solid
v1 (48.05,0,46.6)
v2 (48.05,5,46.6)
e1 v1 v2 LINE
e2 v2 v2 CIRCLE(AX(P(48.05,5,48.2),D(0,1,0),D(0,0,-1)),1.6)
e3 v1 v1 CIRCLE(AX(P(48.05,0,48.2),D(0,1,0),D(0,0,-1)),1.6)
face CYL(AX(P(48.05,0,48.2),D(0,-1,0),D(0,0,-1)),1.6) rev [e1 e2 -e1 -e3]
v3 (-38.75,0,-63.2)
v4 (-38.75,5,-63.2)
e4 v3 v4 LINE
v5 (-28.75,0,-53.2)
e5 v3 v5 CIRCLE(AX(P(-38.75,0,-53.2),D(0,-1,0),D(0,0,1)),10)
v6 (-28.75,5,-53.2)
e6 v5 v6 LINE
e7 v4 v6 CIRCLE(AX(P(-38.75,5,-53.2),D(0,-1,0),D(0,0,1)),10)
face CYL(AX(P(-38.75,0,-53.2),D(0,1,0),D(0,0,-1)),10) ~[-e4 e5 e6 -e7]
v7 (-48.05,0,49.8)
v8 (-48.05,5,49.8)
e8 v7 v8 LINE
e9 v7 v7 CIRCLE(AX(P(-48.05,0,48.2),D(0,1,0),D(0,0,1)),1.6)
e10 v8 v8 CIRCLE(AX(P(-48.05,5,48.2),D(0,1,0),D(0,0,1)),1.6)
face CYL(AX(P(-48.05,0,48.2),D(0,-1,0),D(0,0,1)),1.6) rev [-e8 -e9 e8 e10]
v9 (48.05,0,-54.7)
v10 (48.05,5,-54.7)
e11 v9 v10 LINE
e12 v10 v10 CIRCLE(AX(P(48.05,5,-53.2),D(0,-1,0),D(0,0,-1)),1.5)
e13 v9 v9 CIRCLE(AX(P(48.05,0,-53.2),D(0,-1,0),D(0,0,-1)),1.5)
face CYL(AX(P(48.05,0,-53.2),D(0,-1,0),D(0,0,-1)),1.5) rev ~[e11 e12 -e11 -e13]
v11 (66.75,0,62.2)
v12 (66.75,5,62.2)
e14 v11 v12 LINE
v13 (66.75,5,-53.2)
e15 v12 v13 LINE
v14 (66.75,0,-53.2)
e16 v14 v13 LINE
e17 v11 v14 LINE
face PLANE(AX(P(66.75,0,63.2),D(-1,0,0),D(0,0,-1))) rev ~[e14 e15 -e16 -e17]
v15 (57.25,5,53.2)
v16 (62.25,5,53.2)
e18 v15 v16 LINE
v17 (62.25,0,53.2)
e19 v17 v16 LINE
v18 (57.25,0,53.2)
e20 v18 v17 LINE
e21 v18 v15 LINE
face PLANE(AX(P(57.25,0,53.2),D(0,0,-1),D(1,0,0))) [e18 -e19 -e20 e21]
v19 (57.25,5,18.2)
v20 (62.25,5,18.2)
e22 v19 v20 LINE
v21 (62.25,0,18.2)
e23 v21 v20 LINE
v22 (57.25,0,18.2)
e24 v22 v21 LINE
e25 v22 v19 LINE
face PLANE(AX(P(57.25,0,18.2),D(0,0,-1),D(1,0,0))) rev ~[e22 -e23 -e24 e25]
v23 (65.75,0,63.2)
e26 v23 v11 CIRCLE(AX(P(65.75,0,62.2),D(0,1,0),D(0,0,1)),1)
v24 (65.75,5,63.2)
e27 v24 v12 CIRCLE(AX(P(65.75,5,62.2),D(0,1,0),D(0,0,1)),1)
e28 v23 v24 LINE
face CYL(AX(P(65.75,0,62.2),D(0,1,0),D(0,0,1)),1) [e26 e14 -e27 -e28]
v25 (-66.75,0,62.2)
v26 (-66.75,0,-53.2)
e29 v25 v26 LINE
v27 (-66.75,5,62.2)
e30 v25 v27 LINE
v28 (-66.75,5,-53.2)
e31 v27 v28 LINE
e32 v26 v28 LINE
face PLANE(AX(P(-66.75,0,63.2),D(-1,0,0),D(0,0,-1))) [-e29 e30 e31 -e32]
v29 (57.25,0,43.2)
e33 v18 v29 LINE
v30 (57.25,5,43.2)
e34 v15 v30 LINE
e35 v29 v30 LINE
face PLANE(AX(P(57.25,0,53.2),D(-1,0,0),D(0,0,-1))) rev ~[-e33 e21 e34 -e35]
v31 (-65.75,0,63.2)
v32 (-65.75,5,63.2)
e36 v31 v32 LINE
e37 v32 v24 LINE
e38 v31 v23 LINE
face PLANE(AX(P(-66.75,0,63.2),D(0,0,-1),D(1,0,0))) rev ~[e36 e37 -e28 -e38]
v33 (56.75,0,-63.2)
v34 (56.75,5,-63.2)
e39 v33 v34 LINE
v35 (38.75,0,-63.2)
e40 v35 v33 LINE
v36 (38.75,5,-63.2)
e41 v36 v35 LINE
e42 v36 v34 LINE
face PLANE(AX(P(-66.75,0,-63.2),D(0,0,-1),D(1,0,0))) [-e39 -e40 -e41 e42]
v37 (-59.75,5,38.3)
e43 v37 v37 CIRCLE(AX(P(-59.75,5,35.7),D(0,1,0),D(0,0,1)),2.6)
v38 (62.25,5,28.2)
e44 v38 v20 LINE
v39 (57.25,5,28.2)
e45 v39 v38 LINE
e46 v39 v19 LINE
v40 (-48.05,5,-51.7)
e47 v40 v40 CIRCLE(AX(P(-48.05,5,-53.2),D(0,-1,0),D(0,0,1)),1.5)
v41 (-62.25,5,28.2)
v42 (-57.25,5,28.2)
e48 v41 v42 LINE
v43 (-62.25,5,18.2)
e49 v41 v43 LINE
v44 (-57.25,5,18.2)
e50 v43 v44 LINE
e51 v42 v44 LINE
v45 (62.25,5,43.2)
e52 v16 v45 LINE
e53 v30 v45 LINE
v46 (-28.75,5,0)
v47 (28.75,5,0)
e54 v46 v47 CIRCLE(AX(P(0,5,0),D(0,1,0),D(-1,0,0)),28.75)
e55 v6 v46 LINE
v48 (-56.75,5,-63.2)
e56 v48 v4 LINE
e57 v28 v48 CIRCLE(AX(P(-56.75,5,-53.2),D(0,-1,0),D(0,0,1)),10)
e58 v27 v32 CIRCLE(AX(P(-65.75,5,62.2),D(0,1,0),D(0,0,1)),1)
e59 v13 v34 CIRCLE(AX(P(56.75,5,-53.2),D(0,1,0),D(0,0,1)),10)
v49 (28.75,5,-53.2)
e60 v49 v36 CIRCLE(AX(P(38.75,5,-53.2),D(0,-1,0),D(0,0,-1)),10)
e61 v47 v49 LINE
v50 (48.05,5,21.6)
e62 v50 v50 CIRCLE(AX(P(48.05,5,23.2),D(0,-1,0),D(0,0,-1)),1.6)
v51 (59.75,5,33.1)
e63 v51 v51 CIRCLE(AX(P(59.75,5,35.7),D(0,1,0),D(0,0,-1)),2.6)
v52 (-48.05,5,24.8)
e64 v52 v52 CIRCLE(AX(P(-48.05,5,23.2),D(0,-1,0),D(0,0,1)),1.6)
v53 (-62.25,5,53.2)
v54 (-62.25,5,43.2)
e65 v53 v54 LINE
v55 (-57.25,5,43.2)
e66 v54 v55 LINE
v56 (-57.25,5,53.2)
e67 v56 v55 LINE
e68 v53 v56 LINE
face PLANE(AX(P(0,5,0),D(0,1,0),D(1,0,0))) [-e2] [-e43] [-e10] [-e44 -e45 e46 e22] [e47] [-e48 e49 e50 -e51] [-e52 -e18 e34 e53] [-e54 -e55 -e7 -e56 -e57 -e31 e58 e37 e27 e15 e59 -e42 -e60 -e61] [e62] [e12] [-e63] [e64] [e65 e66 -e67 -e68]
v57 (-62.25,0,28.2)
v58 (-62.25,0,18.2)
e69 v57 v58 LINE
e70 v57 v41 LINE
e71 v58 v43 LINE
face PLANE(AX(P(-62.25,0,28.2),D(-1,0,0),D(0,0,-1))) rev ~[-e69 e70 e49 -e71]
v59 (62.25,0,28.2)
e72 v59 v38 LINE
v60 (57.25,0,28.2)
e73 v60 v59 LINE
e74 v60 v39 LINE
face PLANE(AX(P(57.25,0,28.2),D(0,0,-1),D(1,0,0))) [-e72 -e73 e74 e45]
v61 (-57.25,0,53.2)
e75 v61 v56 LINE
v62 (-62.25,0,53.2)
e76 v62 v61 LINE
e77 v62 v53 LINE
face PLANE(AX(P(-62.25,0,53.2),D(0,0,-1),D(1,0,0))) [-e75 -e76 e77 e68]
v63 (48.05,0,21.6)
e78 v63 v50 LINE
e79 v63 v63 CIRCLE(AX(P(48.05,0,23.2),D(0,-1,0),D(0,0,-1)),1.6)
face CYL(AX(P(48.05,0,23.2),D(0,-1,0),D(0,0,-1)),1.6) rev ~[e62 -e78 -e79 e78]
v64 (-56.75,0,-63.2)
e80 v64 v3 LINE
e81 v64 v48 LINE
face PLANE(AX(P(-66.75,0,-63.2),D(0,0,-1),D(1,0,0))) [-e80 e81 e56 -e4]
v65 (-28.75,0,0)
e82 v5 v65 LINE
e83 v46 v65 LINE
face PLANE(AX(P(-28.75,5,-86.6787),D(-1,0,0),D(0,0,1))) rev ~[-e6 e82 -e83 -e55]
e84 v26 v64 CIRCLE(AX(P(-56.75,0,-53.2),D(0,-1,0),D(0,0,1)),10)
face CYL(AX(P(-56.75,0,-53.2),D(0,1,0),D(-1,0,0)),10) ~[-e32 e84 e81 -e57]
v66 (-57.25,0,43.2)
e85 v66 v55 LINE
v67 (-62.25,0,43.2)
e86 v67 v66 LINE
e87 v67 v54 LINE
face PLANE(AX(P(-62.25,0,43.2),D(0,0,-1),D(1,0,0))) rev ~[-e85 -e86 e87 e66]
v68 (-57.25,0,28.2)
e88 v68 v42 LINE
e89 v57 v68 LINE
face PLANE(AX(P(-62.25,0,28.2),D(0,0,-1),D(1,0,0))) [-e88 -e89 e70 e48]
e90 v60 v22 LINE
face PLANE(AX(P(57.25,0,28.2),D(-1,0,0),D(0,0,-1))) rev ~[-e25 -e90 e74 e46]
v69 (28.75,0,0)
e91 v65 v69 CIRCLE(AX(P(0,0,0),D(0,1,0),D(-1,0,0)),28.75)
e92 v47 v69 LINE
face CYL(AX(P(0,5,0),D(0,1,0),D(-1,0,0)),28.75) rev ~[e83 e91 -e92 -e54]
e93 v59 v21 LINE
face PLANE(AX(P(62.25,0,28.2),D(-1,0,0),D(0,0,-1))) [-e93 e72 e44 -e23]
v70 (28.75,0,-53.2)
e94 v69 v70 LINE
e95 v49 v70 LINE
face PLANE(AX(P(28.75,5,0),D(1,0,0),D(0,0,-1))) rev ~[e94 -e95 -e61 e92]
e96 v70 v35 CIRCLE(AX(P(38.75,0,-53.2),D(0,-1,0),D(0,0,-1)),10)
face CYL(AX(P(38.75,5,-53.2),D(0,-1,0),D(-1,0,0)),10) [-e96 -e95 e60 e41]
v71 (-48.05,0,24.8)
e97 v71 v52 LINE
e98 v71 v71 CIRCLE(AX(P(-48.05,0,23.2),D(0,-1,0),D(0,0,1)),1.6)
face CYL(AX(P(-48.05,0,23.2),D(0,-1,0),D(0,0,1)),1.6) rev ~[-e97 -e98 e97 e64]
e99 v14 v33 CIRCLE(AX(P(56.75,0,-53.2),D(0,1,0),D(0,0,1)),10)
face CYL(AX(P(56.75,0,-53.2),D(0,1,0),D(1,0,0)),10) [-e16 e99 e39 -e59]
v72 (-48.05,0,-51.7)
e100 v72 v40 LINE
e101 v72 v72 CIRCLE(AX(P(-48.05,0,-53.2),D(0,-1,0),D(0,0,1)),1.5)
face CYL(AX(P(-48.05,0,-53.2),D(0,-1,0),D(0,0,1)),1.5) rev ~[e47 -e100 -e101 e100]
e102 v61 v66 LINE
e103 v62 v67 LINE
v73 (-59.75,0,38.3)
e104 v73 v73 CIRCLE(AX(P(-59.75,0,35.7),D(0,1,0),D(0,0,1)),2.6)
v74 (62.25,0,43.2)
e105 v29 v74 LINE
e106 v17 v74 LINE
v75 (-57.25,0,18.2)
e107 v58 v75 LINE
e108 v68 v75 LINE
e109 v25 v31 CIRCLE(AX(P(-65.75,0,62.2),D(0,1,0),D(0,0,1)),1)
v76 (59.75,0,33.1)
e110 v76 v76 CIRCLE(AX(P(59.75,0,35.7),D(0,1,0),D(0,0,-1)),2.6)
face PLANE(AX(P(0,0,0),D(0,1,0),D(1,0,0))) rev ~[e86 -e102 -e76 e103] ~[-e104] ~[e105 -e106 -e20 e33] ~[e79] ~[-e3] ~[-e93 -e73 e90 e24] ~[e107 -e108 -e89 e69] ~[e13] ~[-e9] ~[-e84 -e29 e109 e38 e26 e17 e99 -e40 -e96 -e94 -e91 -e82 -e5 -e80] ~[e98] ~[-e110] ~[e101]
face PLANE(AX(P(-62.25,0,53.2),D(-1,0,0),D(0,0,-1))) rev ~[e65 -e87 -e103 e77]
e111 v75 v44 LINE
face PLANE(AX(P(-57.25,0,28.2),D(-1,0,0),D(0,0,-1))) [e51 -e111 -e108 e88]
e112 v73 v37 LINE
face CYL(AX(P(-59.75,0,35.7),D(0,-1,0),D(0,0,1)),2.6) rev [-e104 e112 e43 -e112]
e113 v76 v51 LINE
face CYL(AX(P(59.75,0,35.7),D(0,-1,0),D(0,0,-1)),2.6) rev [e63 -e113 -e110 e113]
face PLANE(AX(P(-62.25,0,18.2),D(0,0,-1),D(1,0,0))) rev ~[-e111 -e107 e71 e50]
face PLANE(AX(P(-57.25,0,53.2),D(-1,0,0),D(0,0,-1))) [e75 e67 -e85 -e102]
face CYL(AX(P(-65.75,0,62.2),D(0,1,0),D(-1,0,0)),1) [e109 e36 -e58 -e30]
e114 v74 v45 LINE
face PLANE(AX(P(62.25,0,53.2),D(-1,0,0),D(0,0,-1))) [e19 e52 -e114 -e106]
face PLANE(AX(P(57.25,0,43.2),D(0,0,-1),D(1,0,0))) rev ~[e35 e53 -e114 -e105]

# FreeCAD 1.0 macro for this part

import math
import FreeCAD as App
import Part
import Sketcher
from FreeCAD import Vector


def edges_at(feature, points):
    """Names of the edges that pass closest to the given points."""
    edges = feature.Shape.Edges
    near = lambda p: min(range(len(edges)), key=lambda i: edges[i].distToShape(Part.Vertex(*p))[0])
    return sorted({f"Edge{near(p) + 1}" for p in points})

doc = App.newDocument("Part")
body = doc.addObject("PartDesign::Body", "Body")

sketch1 = doc.addObject("Sketcher::SketchObject", "Sketch")
body.addObject(sketch1)
sketch1.AttachmentSupport = (doc.XZ_Plane, [""])
sketch1.MapMode = "FlatFace"
sketch1.addGeometry([
    Part.LineSegment(Vector(-66.75, -63.2, 0), Vector(-66.75, 63.2, 0)),
    Part.LineSegment(Vector(-66.75, 63.2, 0), Vector(66.75, 63.2, 0)),
    Part.LineSegment(Vector(66.75, 63.2, 0), Vector(66.75, -63.2, 0)),
    Part.LineSegment(Vector(66.75, -63.2, 0), Vector(-66.75, -63.2, 0)),
    Part.LineSegment(Vector(-57.25, 53.2, 0), Vector(-62.25, 53.2, 0)),
    Part.LineSegment(Vector(-62.25, 53.2, 0), Vector(-62.25, 43.2, 0)),
    Part.LineSegment(Vector(-62.25, 43.2, 0), Vector(-57.25, 43.2, 0)),
    Part.LineSegment(Vector(-57.25, 43.2, 0), Vector(-57.25, 53.2, 0)),
    Part.Circle(Vector(-48.05, 48.2, 0), Vector(0, 0, 1), 1.6),
    Part.Circle(Vector(48.05, 48.2, 0), Vector(0, 0, 1), 1.6),
    Part.LineSegment(Vector(62.25, 53.2, 0), Vector(57.25, 53.2, 0)),
    Part.LineSegment(Vector(57.25, 53.2, 0), Vector(57.25, 43.2, 0)),
    Part.LineSegment(Vector(57.25, 43.2, 0), Vector(62.25, 43.2, 0)),
    Part.LineSegment(Vector(62.25, 43.2, 0), Vector(62.25, 53.2, 0)),
    Part.Circle(Vector(-59.75, 35.7, 0), Vector(0, 0, 1), 2.6),
    Part.LineSegment(Vector(-57.25, 28.2, 0), Vector(-62.25, 28.2, 0)),
    Part.LineSegment(Vector(-62.25, 28.2, 0), Vector(-62.25, 18.2, 0)),
    Part.LineSegment(Vector(-62.25, 18.2, 0), Vector(-57.25, 18.2, 0)),
    Part.LineSegment(Vector(-57.25, 18.2, 0), Vector(-57.25, 28.2, 0)),
    Part.Circle(Vector(59.75, 35.7, 0), Vector(0, 0, 1), 2.6),
    Part.LineSegment(Vector(62.25, 28.2, 0), Vector(57.25, 28.2, 0)),
    Part.LineSegment(Vector(57.25, 28.2, 0), Vector(57.25, 18.2, 0)),
    Part.LineSegment(Vector(57.25, 18.2, 0), Vector(62.25, 18.2, 0)),
    Part.LineSegment(Vector(62.25, 18.2, 0), Vector(62.25, 28.2, 0)),
], False)
sketch1.addConstraint([
    Sketcher.Constraint("Coincident", 0, 2, 1, 1),
    Sketcher.Constraint("Coincident", 1, 2, 2, 1),
    Sketcher.Constraint("Coincident", 2, 2, 3, 1),
    Sketcher.Constraint("Coincident", 3, 2, 0, 1),
    Sketcher.Constraint("Coincident", 4, 2, 5, 1),
    Sketcher.Constraint("Coincident", 5, 2, 6, 1),
    Sketcher.Constraint("Coincident", 6, 2, 7, 1),
    Sketcher.Constraint("Coincident", 7, 2, 4, 1),
    Sketcher.Constraint("Coincident", 10, 2, 11, 1),
    Sketcher.Constraint("Coincident", 11, 2, 12, 1),
    Sketcher.Constraint("Coincident", 12, 2, 13, 1),
    Sketcher.Constraint("Coincident", 13, 2, 10, 1),
    Sketcher.Constraint("Coincident", 15, 2, 16, 1),
    Sketcher.Constraint("Coincident", 16, 2, 17, 1),
    Sketcher.Constraint("Coincident", 17, 2, 18, 1),
    Sketcher.Constraint("Coincident", 18, 2, 15, 1),
    Sketcher.Constraint("Coincident", 20, 2, 21, 1),
    Sketcher.Constraint("Coincident", 21, 2, 22, 1),
    Sketcher.Constraint("Coincident", 22, 2, 23, 1),
    Sketcher.Constraint("Coincident", 23, 2, 20, 1),
    Sketcher.Constraint("Vertical", 0),
    Sketcher.Constraint("Horizontal", 1),
    Sketcher.Constraint("Vertical", 2),
    Sketcher.Constraint("Horizontal", 3),
    Sketcher.Constraint("Horizontal", 4),
    Sketcher.Constraint("Vertical", 5),
    Sketcher.Constraint("Horizontal", 6),
    Sketcher.Constraint("Vertical", 7),
    Sketcher.Constraint("Horizontal", 10),
    Sketcher.Constraint("Vertical", 11),
    Sketcher.Constraint("Horizontal", 12),
    Sketcher.Constraint("Vertical", 13),
    Sketcher.Constraint("Horizontal", 15),
    Sketcher.Constraint("Vertical", 16),
    Sketcher.Constraint("Horizontal", 17),
    Sketcher.Constraint("Vertical", 18),
    Sketcher.Constraint("Horizontal", 20),
    Sketcher.Constraint("Vertical", 21),
    Sketcher.Constraint("Horizontal", 22),
    Sketcher.Constraint("Vertical", 23),
    Sketcher.Constraint("Equal", 8, 9),
    Sketcher.Constraint("Equal", 14, 19),
    Sketcher.Constraint("Symmetric", 0, 2, 2, 2, -1, 1),
    Sketcher.Constraint("Symmetric", 8, 3, 9, 3, -2),
    Sketcher.Constraint("Symmetric", 14, 3, 19, 3, -2),
    Sketcher.Constraint("Symmetric", 7, 2, 10, 2, -2),
    Sketcher.Constraint("Symmetric", 5, 2, 12, 2, -2),
    Sketcher.Constraint("Symmetric", 18, 2, 20, 2, -2),
    Sketcher.Constraint("Symmetric", 16, 2, 22, 2, -2),
    Sketcher.Constraint("Vertical", 5, 2, 15, 2),
    Sketcher.Constraint("Vertical", 7, 2, 17, 2),
    Sketcher.Constraint("Equal", 13, 16),
    Sketcher.Constraint("Diameter", 8, 3.2),
    Sketcher.Constraint("Diameter", 14, 5.2),
    Sketcher.Constraint("DistanceX", 4, 2, 4, 1, 5.0),
    Sketcher.Constraint("DistanceY", 5, 2, 5, 1, 10.0),
    Sketcher.Constraint("DistanceX", 1, 1, 1, 2, 133.5),
    Sketcher.Constraint("DistanceY", 0, 1, 0, 2, 126.4),
    Sketcher.Constraint("DistanceY", 8, 3, 0, 2, 15.0),
    Sketcher.Constraint("DistanceX", 0, 2, 14, 3, 7.0),
    Sketcher.Constraint("DistanceY", 4, 2, 0, 2, 10.0),
    Sketcher.Constraint("DistanceY", 15, 2, 5, 2, 15.0),
    Sketcher.Constraint("DistanceY", -1, 1, 14, 3, 35.7),
    Sketcher.Constraint("DistanceX", 8, 3, 9, 3, 96.1),
    Sketcher.Constraint("DistanceX", 0, 2, 4, 2, 4.5),
])
pad1 = doc.addObject("PartDesign::Pad", "Pad")
body.addObject(pad1)
pad1.Profile = sketch1
pad1.Length = 5
pad1.Reversed = True

sketch2 = doc.addObject("Sketcher::SketchObject", "Sketch001")
body.addObject(sketch2)
sketch2.AttachmentSupport = (doc.XZ_Plane, [""])
sketch2.MapMode = "FlatFace"
sketch2.AttachmentOffset = App.Placement(Vector(0, 0, -5), App.Rotation())
sketch2.addGeometry([
    Part.LineSegment(Vector(-28.75, -86.6787, 0), Vector(-28.75, 0, 0)),
    Part.ArcOfCircle(Part.Circle(Vector(0, 0, 0), Vector(0, 0, 1), 28.75), math.radians(0), math.radians(180)),
    Part.LineSegment(Vector(28.75, 0, 0), Vector(28.75, -86.6787, 0)),
    Part.LineSegment(Vector(28.75, -86.6787, 0), Vector(-28.75, -86.6787, 0)),
], False)
sketch2.addConstraint([
    Sketcher.Constraint("Tangent", 0, 2, 1, 2),
    Sketcher.Constraint("Tangent", 1, 1, 2, 1),
    Sketcher.Constraint("Coincident", 2, 2, 3, 1),
    Sketcher.Constraint("Coincident", 3, 2, 0, 1),
    Sketcher.Constraint("Vertical", 0),
    Sketcher.Constraint("Vertical", 2),
    Sketcher.Constraint("Horizontal", 3),
    Sketcher.Constraint("Coincident", 1, 3, -1, 1),
    Sketcher.Constraint("Radius", 1, 28.75),
    Sketcher.Constraint("DistanceY", 0, 1, 0, 2, 86.6787),
])
pocket1 = doc.addObject("PartDesign::Pocket", "Pocket")
body.addObject(pocket1)
pocket1.Profile = sketch2
pocket1.Length = 10
pocket1.Reversed = True
doc.recompute()

fillet = doc.addObject("PartDesign::Fillet", "Fillet")
body.addObject(fillet)
fillet.Base = (pocket1, edges_at(pocket1, [
    (-66.75, 2.5, -63.2),
    (66.75, 2.5, -63.2),
    (-28.75, 2.5, -63.2),
    (28.75, 2.5, -63.2),
]))
fillet.Radius = 10

sketch3 = doc.addObject("Sketcher::SketchObject", "Sketch002")
body.addObject(sketch3)
sketch3.AttachmentSupport = (doc.XZ_Plane, [""])
sketch3.MapMode = "FlatFace"
sketch3.addGeometry(Part.Circle(Vector(48.05, 23.2, 0), Vector(0, 0, 1), 1.6), False)
sketch3.addConstraint([
    Sketcher.Constraint("Diameter", 0, 3.2),
    Sketcher.Constraint("DistanceY", -1, 1, 0, 3, 23.2),
    Sketcher.Constraint("DistanceX", -1, 1, 0, 3, 48.05),
])
pocket2 = doc.addObject("PartDesign::Pocket", "Pocket001")
body.addObject(pocket2)
pocket2.Profile = sketch3
pocket2.Type = "UpToFirst"

sketch4 = doc.addObject("Sketcher::SketchObject", "Sketch003")
body.addObject(sketch4)
sketch4.AttachmentSupport = (doc.XZ_Plane, [""])
sketch4.MapMode = "FlatFace"
sketch4.addGeometry(Part.Circle(Vector(48.05, -53.2, 0), Vector(0, 0, 1), 1.5), False)
sketch4.addConstraint([
    Sketcher.Constraint("Diameter", 0, 3.0),
    Sketcher.Constraint("DistanceY", 0, 3, -1, 1, 53.2),
    Sketcher.Constraint("DistanceX", -1, 1, 0, 3, 48.05),
])
pocket3 = doc.addObject("PartDesign::Pocket", "Pocket002")
body.addObject(pocket3)
pocket3.Profile = sketch4
pocket3.Type = "UpToFirst"

sketch5 = doc.addObject("Sketcher::SketchObject", "Sketch004")
body.addObject(sketch5)
sketch5.AttachmentSupport = (doc.XZ_Plane, [""])
sketch5.MapMode = "FlatFace"
sketch5.addGeometry(Part.Circle(Vector(-48.05, -53.2, 0), Vector(0, 0, 1), 1.5), False)
sketch5.addConstraint([
    Sketcher.Constraint("Diameter", 0, 3.0),
    Sketcher.Constraint("DistanceY", 0, 3, -1, 1, 53.2),
    Sketcher.Constraint("DistanceX", 0, 3, -1, 1, 48.05),
])
pocket4 = doc.addObject("PartDesign::Pocket", "Pocket003")
body.addObject(pocket4)
pocket4.Profile = sketch5
pocket4.Type = "UpToFirst"

sketch6 = doc.addObject("Sketcher::SketchObject", "Sketch005")
body.addObject(sketch6)
sketch6.AttachmentSupport = (doc.XZ_Plane, [""])
sketch6.MapMode = "FlatFace"
sketch6.addGeometry(Part.Circle(Vector(-48.05, 23.2, 0), Vector(0, 0, 1), 1.6), False)
sketch6.addConstraint([
    Sketcher.Constraint("Diameter", 0, 3.2),
    Sketcher.Constraint("DistanceY", -1, 1, 0, 3, 23.2),
    Sketcher.Constraint("DistanceX", 0, 3, -1, 1, 48.05),
])
pocket5 = doc.addObject("PartDesign::Pocket", "Pocket004")
body.addObject(pocket5)
pocket5.Profile = sketch6
pocket5.Type = "UpToFirst"
doc.recompute()

fillet2 = doc.addObject("PartDesign::Fillet", "Fillet001")
body.addObject(fillet2)
fillet2.Base = (pocket5, edges_at(pocket5, [(66.75, 2.5, 63.2), (-66.75, 2.5, 63.2)]))
fillet2.Radius = 1

doc.recompute()
